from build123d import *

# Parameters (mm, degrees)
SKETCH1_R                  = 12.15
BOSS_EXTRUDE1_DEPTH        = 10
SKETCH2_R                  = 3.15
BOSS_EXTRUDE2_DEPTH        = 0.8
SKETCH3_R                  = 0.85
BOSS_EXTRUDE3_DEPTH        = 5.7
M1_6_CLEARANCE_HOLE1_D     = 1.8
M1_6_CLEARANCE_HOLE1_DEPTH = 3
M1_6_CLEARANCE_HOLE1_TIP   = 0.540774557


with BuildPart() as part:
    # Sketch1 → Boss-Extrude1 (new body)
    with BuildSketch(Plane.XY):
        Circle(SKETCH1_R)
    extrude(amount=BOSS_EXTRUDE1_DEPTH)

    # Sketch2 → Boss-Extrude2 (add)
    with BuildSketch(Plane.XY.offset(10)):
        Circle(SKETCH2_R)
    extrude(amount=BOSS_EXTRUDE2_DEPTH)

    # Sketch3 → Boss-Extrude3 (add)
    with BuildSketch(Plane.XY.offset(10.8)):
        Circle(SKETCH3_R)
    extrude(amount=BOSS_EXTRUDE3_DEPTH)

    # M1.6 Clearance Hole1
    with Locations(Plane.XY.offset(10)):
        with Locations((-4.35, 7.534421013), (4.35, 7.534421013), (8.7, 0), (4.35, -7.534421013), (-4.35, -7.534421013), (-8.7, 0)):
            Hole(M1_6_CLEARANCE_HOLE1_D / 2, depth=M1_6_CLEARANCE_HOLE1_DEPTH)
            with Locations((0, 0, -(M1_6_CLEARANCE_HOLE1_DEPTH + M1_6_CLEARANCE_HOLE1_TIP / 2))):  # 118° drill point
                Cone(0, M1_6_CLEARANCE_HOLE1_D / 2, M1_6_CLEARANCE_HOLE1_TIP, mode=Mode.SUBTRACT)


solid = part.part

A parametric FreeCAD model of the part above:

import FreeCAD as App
import Part
import Sketcher

doc = App.newDocument("Part")
body = doc.addObject("PartDesign::Body", "Body")

# Sketch on XY plane
sketch1 = doc.addObject("Sketcher::SketchObject", "Sketch")
body.addObject(sketch1)
sketch1.AttachmentSupport = (doc.XY_Plane, [""])
sketch1.MapMode = "FlatFace"
sketch1.addGeometry(Part.Circle(App.Vector(0, 0, 0), App.Vector(0, 0, 1), 12), False)
sketch1.addConstraint([
    Sketcher.Constraint("Coincident", 0, 3, -1, 1),
    Sketcher.Constraint("Diameter", 0, 24.3),
])
pad1 = doc.addObject("PartDesign::Pad", "Pad")
body.addObject(pad1)
pad1.Profile = sketch1
pad1.Length = 10

# Sketch on XY plane
sketch2 = doc.addObject("Sketcher::SketchObject", "Sketch001")
body.addObject(sketch2)
sketch2.AttachmentSupport = (doc.XY_Plane, [""])
sketch2.MapMode = "FlatFace"
sketch2.AttachmentOffset = App.Placement(App.Vector(0, 0, 10), App.Rotation())
sketch2.addGeometry(Part.Circle(App.Vector(0, 0, 0), App.Vector(0, 0, 1), 3.1), False)
sketch2.addConstraint([
    Sketcher.Constraint("Coincident", 0, 3, -1, 1),
    Sketcher.Constraint("Diameter", 0, 6.3),
])
pad2 = doc.addObject("PartDesign::Pad", "Pad001")
body.addObject(pad2)
pad2.Profile = sketch2
pad2.Length = 0.8

# Sketch on XY plane
sketch3 = doc.addObject("Sketcher::SketchObject", "Sketch002")
body.addObject(sketch3)
sketch3.AttachmentSupport = (doc.XY_Plane, [""])
sketch3.MapMode = "FlatFace"
sketch3.AttachmentOffset = App.Placement(App.Vector(0, 0, 10.8), App.Rotation())
sketch3.addGeometry(Part.Circle(App.Vector(0, 0, 0), App.Vector(0, 0, 1), 0.8), False)
sketch3.addConstraint([
    Sketcher.Constraint("Coincident", 0, 3, -1, 1),
    Sketcher.Constraint("Diameter", 0, 1.7),
])
pad3 = doc.addObject("PartDesign::Pad", "Pad002")
body.addObject(pad3)
pad3.Profile = sketch3
pad3.Length = 5.7

# Sketch on XY plane
sketch4 = doc.addObject("Sketcher::SketchObject", "Sketch003")
body.addObject(sketch4)
sketch4.AttachmentSupport = (doc.XY_Plane, [""])
sketch4.MapMode = "FlatFace"
sketch4.AttachmentOffset = App.Placement(App.Vector(0, 0, 10), App.Rotation())
sketch4.addGeometry([
    Part.Circle(App.Vector(-4.3, 7.5, 0), App.Vector(0, 0, 1), 0.9),  # 0
    Part.Circle(App.Vector(4.3, 7.5, 0), App.Vector(0, 0, 1), 0.9),  # 1
    Part.Circle(App.Vector(8.7, 0, 0), App.Vector(0, 0, 1), 0.9),  # 2
    Part.Circle(App.Vector(4.3, -7.5, 0), App.Vector(0, 0, 1), 0.9),  # 3
    Part.Circle(App.Vector(-4.3, -7.5, 0), App.Vector(0, 0, 1), 0.9),  # 4
    Part.Circle(App.Vector(-8.7, 0, 0), App.Vector(0, 0, 1), 0.9),  # 5
], False)
sketch4.addConstraint([
    Sketcher.Constraint("Equal", 0, 1),
    Sketcher.Constraint("Equal", 1, 2),
    Sketcher.Constraint("Equal", 2, 3),
    Sketcher.Constraint("Equal", 3, 4),
    Sketcher.Constraint("Equal", 4, 5),
    Sketcher.Constraint("Symmetric", 0, 3, 3, 3, -1, 1),
    Sketcher.Constraint("Symmetric", 1, 3, 4, 3, -1, 1),
    Sketcher.Constraint("Symmetric", 2, 3, 5, 3, -1, 1),
    Sketcher.Constraint("Symmetric", 0, 3, 1, 3, -2),
    Sketcher.Constraint("PointOnObject", 2, 3, -1),
    Sketcher.Constraint("Diameter", 0, 1.8),
    Sketcher.Constraint("DistanceX", -1, 1, 2, 3, 8.7),
    Sketcher.Constraint("DistanceX", 0, 3, 1, 3, 8.7),
    Sketcher.Constraint("DistanceY", -1, 1, 0, 3, 7.534421),
])
doc.recompute()
hole = doc.addObject("PartDesign::Hole", "Hole")
body.addObject(hole)
hole.Profile = sketch4
hole.ThreadType = "None"
hole.Diameter = 1.8
hole.DepthType = "Dimension"
hole.Depth = 3
hole.DrillPoint = "Angled"
hole.DrillPointAngle = 118

doc.recompute()
